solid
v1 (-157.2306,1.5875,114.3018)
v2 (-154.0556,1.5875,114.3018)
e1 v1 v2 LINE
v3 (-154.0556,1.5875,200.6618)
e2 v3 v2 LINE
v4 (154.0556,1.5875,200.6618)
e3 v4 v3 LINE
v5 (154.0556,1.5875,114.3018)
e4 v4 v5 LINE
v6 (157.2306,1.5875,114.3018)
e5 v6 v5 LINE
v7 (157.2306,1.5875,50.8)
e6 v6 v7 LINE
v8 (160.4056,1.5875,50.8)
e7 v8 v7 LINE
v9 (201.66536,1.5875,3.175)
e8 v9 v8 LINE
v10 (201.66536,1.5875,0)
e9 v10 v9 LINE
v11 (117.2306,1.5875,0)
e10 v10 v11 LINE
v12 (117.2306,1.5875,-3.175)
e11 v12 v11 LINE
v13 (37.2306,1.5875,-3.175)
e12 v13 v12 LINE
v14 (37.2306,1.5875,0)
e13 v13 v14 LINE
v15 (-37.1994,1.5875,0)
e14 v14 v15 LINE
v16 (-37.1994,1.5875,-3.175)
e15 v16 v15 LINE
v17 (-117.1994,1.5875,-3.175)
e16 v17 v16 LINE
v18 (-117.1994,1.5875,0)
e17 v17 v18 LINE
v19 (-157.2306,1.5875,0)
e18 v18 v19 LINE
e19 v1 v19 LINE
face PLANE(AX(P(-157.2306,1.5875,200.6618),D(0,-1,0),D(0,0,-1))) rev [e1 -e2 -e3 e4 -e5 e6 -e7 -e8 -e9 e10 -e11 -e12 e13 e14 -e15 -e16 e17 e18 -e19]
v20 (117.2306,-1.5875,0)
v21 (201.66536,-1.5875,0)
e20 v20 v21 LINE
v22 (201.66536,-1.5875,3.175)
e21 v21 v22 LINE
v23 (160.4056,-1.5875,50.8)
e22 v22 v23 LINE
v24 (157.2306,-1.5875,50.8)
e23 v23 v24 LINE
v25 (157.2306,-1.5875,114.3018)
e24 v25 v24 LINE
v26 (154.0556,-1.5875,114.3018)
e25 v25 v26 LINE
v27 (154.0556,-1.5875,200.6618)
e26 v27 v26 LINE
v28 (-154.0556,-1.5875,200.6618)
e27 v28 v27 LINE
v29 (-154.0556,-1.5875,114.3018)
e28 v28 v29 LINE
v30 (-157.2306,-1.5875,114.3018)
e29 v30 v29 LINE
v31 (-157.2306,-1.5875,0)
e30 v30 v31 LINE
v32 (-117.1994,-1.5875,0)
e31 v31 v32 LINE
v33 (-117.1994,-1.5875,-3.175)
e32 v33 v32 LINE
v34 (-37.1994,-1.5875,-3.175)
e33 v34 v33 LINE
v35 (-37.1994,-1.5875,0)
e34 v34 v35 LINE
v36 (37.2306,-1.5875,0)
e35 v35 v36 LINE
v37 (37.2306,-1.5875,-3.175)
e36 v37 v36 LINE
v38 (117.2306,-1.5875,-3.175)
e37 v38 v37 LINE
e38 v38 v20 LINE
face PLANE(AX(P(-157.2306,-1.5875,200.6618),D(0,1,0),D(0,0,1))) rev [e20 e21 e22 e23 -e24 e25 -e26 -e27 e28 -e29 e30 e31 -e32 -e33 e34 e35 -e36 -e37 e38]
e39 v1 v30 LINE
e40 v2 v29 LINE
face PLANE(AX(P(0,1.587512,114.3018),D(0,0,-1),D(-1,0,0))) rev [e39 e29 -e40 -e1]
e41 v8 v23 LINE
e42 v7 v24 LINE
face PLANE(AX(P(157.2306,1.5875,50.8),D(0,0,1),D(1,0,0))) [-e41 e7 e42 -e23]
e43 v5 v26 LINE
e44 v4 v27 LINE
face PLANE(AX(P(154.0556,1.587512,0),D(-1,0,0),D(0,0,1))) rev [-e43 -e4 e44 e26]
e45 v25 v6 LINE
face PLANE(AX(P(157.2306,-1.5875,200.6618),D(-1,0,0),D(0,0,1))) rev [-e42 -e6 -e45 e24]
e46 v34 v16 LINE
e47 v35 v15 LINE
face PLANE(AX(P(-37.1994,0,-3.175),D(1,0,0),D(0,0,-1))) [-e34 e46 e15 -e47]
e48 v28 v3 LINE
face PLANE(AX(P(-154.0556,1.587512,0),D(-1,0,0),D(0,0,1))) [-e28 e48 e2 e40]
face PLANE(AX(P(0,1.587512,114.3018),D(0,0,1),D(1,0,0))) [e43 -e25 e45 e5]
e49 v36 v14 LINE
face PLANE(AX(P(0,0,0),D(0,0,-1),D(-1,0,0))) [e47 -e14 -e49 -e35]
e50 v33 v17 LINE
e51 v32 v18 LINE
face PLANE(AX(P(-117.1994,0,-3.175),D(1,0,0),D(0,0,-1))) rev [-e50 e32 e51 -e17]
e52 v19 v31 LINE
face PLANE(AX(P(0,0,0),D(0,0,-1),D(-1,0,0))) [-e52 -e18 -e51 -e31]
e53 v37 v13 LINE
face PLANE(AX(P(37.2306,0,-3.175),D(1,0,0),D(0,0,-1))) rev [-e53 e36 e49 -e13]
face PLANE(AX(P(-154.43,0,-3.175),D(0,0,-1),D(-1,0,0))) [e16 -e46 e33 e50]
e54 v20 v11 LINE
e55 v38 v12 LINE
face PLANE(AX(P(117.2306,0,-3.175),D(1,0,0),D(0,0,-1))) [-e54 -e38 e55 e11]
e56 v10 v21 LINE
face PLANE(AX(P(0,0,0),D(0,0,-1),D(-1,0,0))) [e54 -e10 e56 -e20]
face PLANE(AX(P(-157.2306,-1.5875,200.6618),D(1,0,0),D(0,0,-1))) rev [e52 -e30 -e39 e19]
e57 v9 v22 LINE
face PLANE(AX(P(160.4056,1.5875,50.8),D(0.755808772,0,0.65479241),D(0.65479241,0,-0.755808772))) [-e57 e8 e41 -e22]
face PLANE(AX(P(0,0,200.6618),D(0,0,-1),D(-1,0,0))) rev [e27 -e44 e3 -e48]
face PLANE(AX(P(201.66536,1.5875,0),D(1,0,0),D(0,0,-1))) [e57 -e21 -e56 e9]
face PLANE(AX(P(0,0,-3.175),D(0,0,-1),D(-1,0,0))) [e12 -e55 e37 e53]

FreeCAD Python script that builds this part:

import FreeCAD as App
import Part
import Sketcher
from FreeCAD import Vector
Q = App.Units.Quantity

doc = App.newDocument("Part")
params = doc.addObject("Spreadsheet::Sheet", "Params")
for row, (alias, value) in enumerate([
    ("sketch1_height", "0.125 in"),
    ("pad1_length", "200.6618 mm"),
    ("sketch2_height", "3.4 in"),
    ("sketch2_width", "0.125 in"),
    ("pocket1_length", "259.119504 mm"),
    ("sketch3_height", "0.125 in"),
    ("pad2_length", "0.125 in"),
    ("linearpattern_pitch", "154.43 mm"),
    ("sketch4_height", "2 in"),
    ("sketch4_width", "0.125 in"),
    ("pad3_length", "0.125 in"),
], start=1):
    params.set(f"A{row}", alias)
    params.set(f"B{row}", "=" + value)
    params.setAlias(f"B{row}", alias)

body = doc.addObject("PartDesign::Body", "Body")

# Sketch on XY plane
sketch1 = body.newObject("Sketcher::SketchObject", "Sketch")
sketch1.AttachmentSupport = (doc.getObject("XY_Plane"), [""])
sketch1.MapMode = "FlatFace"
sketch1.addGeometry(Part.LineSegment(Vector(-157.2, 1.6, 0), Vector(-157.2, -1.6, 0)), False)
sketch1.addGeometry(Part.LineSegment(Vector(-157.2, -1.6, 0), Vector(157.2, -1.6, 0)), False)
sketch1.addGeometry(Part.LineSegment(Vector(157.2, -1.6, 0), Vector(157.2, 1.6, 0)), False)
sketch1.addGeometry(Part.LineSegment(Vector(157.2, 1.6, 0), Vector(-157.2, 1.6, 0)), False)
sketch1.addConstraint(Sketcher.Constraint("Coincident", 0, 2, 1, 1))
sketch1.addConstraint(Sketcher.Constraint("Coincident", 1, 2, 2, 1))
sketch1.addConstraint(Sketcher.Constraint("Coincident", 2, 2, 3, 1))
sketch1.addConstraint(Sketcher.Constraint("Coincident", 3, 2, 0, 1))
sketch1.addConstraint(Sketcher.Constraint("Vertical", 0))
sketch1.addConstraint(Sketcher.Constraint("Horizontal", 1))
sketch1.addConstraint(Sketcher.Constraint("Vertical", 2))
sketch1.addConstraint(Sketcher.Constraint("Horizontal", 3))
sketch1.addConstraint(Sketcher.Constraint("Symmetric", 0, 2, 2, 2, -1, 1))
sketch1.addConstraint(Sketcher.Constraint("DistanceY", 0, 2, 0, 1, Q("0.125 in")))
sketch1.addConstraint(Sketcher.Constraint("DistanceX", 1, 1, 1, 2, 314.4612))
sketch1.setExpression("Constraints[9]", "Params.sketch1_height")
pad1 = body.newObject("PartDesign::Pad", "Pad")
pad1.Profile = sketch1
pad1.setExpression("Length", "Params.pad1_length")

# Sketch on XZ plane
sketch2 = body.newObject("Sketcher::SketchObject", "Sketch001")
sketch2.AttachmentSupport = (doc.getObject("XZ_Plane"), [""])
sketch2.MapMode = "FlatFace"
sketch2.AttachmentOffset = App.Placement(Vector(0, 0, 0.0625 * 25.4), App.Rotation())
sketch2.addGeometry(Part.LineSegment(Vector(-157.2, 114.3, 0), Vector(-157.2, 200.7, 0)), False)
sketch2.addGeometry(Part.LineSegment(Vector(-157.2, 200.7, 0), Vector(-154.1, 200.7, 0)), False)
sketch2.addGeometry(Part.LineSegment(Vector(-154.1, 200.7, 0), Vector(-154.1, 114.3, 0)), False)
sketch2.addGeometry(Part.LineSegment(Vector(-154.1, 114.3, 0), Vector(-157.2, 114.3, 0)), False)
sketch2.addConstraint(Sketcher.Constraint("Coincident", 0, 2, 1, 1))
sketch2.addConstraint(Sketcher.Constraint("Coincident", 1, 2, 2, 1))
sketch2.addConstraint(Sketcher.Constraint("Coincident", 2, 2, 3, 1))
sketch2.addConstraint(Sketcher.Constraint("Coincident", 3, 2, 0, 1))
sketch2.addConstraint(Sketcher.Constraint("Vertical", 0))
sketch2.addConstraint(Sketcher.Constraint("Horizontal", 1))
sketch2.addConstraint(Sketcher.Constraint("Vertical", 2))
sketch2.addConstraint(Sketcher.Constraint("Horizontal", 3))
sketch2.addConstraint(Sketcher.Constraint("DistanceY", 0, 1, 0, 2, Q("3.4 in")))
sketch2.addConstraint(Sketcher.Constraint("DistanceX", 1, 1, 1, 2, Q("0.125 in")))
sketch2.addConstraint(Sketcher.Constraint("DistanceX", 0, 2, -1, 1, 157.2306))
sketch2.addConstraint(Sketcher.Constraint("DistanceY", -1, 1, 0, 2, 200.6618))
sketch2.setExpression("Constraints[8]", "Params.sketch2_height")
sketch2.setExpression("Constraints[9]", "Params.sketch2_width")
pocket1 = body.newObject("PartDesign::Pocket", "Pocket")
pocket1.Profile = sketch2
pocket1.setExpression("Length", "Params.pocket1_length")
doc.recompute()

mirrored = body.newObject("PartDesign::Mirrored", "Mirrored")
mirrored.Originals = [pocket1]
mirrored.MirrorPlane = (doc.getObject("YZ_Plane"), [""])
body.Tip = mirrored

# Sketch on XY plane
sketch3 = body.newObject("Sketcher::SketchObject", "Sketch002")
sketch3.AttachmentSupport = (doc.getObject("XY_Plane"), [""])
sketch3.MapMode = "FlatFace"
sketch3.addGeometry(Part.LineSegment(Vector(117.2, 1.6, 0), Vector(117.2, -1.6, 0)), False)
sketch3.addGeometry(Part.LineSegment(Vector(117.2, -1.6, 0), Vector(37.2, -1.6, 0)), False)
sketch3.addGeometry(Part.LineSegment(Vector(37.2, -1.6, 0), Vector(37.2, 1.6, 0)), False)
sketch3.addGeometry(Part.LineSegment(Vector(37.2, 1.6, 0), Vector(117.2, 1.6, 0)), False)
sketch3.addConstraint(Sketcher.Constraint("Coincident", 0, 2, 1, 1))
sketch3.addConstraint(Sketcher.Constraint("Coincident", 1, 2, 2, 1))
sketch3.addConstraint(Sketcher.Constraint("Coincident", 2, 2, 3, 1))
sketch3.addConstraint(Sketcher.Constraint("Coincident", 3, 2, 0, 1))
sketch3.addConstraint(Sketcher.Constraint("Vertical", 0))
sketch3.addConstraint(Sketcher.Constraint("Horizontal", 1))
sketch3.addConstraint(Sketcher.Constraint("Vertical", 2))
sketch3.addConstraint(Sketcher.Constraint("Horizontal", 3))
sketch3.addConstraint(Sketcher.Constraint("DistanceY", 0, 2, 0, 1, Q("0.125 in")))
sketch3.addConstraint(Sketcher.Constraint("DistanceY", 0, 2, -1, 1, Q("0.0625 in")))
sketch3.addConstraint(Sketcher.Constraint("DistanceX", 1, 2, 1, 1, 80.0))
sketch3.addConstraint(Sketcher.Constraint("DistanceX", -1, 1, 0, 2, 117.2306))
sketch3.setExpression("Constraints[8]", "Params.sketch3_height")
pad2 = body.newObject("PartDesign::Pad", "Pad001")
pad2.Profile = sketch3
pad2.setExpression("Length", "Params.pad2_length")
pad2.Reversed = True
doc.recompute()

linearpattern = body.newObject("PartDesign::LinearPattern", "LinearPattern")
linearpattern.Originals = [pad2]
linearpattern.Direction = (doc.getObject("X_Axis"), [""])
linearpattern.Mode = "offset"
linearpattern.setExpression("Offset", "Params.linearpattern_pitch")
linearpattern.Occurrences = 2
linearpattern.Reversed = True
body.Tip = linearpattern

# Sketch on XZ plane
sketch4 = body.newObject("Sketcher::SketchObject", "Sketch003")
sketch4.AttachmentSupport = (doc.getObject("XZ_Plane"), [""])
sketch4.MapMode = "FlatFace"
sketch4.AttachmentOffset = App.Placement(Vector(0, 0, 0.0625 * 25.4), App.Rotation())
sketch4.addGeometry(Part.LineSegment(Vector(201.7, 0, 0), Vector(201.7, 3.2, 0)), False)
sketch4.addGeometry(Part.LineSegment(Vector(201.7, 3.2, 0), Vector(160.4, 50.8, 0)), False)
sketch4.addGeometry(Part.LineSegment(Vector(160.4, 50.8, 0), Vector(157.2, 50.8, 0)), False)
sketch4.addGeometry(Part.LineSegment(Vector(157.2, 50.8, 0), Vector(157.2, 0, 0)), False)
sketch4.addGeometry(Part.LineSegment(Vector(157.2, 0, 0), Vector(201.7, 0, 0)), False)
sketch4.addConstraint(Sketcher.Constraint("Coincident", 0, 2, 1, 1))
sketch4.addConstraint(Sketcher.Constraint("Coincident", 1, 2, 2, 1))
sketch4.addConstraint(Sketcher.Constraint("Coincident", 2, 2, 3, 1))
sketch4.addConstraint(Sketcher.Constraint("Coincident", 3, 2, 4, 1))
sketch4.addConstraint(Sketcher.Constraint("Coincident", 4, 2, 0, 1))
sketch4.addConstraint(Sketcher.Constraint("Vertical", 0))
sketch4.addConstraint(Sketcher.Constraint("Horizontal", 2))
sketch4.addConstraint(Sketcher.Constraint("Vertical", 3))
sketch4.addConstraint(Sketcher.Constraint("Horizontal", 4))
sketch4.addConstraint(Sketcher.Constraint("PointOnObject", 3, 2, -1))
sketch4.addConstraint(Sketcher.Constraint("Equal", 2, 0))
sketch4.addConstraint(Sketcher.Constraint("DistanceY", 3, 2, 3, 1, Q("2 in")))
sketch4.addConstraint(Sketcher.Constraint("DistanceX", 2, 2, 2, 1, Q("0.125 in")))
sketch4.addConstraint(Sketcher.Constraint("DistanceX", 4, 1, 4, 2, Q("1.7494 in")))
sketch4.addConstraint(Sketcher.Constraint("DistanceX", -1, 1, 1, 2, 160.4056))
sketch4.setExpression("Constraints[11]", "Params.sketch4_height")
sketch4.setExpression("Constraints[12]", "Params.sketch4_width")
pad3 = body.newObject("PartDesign::Pad", "Pad002")
pad3.Profile = sketch4
pad3.setExpression("Length", "Params.pad3_length")
pad3.Reversed = True

doc.recompute()
